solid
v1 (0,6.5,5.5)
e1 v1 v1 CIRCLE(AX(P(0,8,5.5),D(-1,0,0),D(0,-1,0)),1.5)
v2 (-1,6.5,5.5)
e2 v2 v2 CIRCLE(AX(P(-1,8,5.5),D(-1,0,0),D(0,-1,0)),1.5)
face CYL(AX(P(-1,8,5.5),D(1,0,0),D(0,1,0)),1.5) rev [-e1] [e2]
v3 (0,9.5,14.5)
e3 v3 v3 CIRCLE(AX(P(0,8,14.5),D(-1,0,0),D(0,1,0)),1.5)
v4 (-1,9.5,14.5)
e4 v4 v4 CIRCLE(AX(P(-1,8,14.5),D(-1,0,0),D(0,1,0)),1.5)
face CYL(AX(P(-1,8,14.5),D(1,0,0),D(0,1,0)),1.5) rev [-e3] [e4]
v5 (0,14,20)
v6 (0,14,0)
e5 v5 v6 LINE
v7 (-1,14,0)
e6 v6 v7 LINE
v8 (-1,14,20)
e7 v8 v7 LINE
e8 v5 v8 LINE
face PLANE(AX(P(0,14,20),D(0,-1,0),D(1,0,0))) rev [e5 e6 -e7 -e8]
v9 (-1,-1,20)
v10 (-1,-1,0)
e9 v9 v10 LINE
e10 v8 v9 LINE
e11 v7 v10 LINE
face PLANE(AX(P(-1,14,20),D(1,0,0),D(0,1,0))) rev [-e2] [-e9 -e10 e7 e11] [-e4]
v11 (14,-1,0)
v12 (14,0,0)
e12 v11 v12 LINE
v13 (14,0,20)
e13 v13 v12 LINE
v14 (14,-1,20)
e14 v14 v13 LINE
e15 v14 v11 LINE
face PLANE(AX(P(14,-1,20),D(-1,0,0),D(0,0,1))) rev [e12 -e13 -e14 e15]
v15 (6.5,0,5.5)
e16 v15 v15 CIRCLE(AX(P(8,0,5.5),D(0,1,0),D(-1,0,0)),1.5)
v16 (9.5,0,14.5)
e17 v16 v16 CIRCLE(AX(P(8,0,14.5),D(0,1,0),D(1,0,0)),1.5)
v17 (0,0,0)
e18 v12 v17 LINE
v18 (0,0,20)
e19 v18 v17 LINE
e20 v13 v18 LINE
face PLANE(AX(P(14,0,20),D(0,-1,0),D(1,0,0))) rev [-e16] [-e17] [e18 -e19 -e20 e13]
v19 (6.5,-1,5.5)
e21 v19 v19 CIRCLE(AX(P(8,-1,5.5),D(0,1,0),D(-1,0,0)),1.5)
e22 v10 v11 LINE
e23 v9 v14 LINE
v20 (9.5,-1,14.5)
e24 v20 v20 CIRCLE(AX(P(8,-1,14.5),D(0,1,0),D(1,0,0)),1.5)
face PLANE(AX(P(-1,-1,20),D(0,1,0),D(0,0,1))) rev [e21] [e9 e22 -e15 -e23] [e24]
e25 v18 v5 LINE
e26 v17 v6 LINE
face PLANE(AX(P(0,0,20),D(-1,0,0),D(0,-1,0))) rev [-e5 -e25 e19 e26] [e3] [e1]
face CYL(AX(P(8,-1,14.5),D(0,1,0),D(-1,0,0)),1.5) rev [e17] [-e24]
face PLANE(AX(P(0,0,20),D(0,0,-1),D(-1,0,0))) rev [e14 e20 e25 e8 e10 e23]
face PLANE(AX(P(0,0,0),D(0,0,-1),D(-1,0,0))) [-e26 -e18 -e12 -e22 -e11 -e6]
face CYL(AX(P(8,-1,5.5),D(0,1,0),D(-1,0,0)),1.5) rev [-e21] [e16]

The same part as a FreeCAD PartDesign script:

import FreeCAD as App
import Part
import Sketcher
Q = App.Units.Quantity

doc = App.newDocument("Part")
body = doc.addObject("PartDesign::Body", "Body")

# Sketch on XY plane
sketch1 = body.newObject("Sketcher::SketchObject", "Sketch")
sketch1.AttachmentSupport = (doc.getObject("XY_Plane"), [""])
sketch1.MapMode = "FlatFace"
sketch1.addGeometry([
    Part.LineSegment(App.Vector(0, 0, 0), App.Vector(0, 14, 0)),  # 0
    Part.LineSegment(App.Vector(0, 14, 0), App.Vector(-1, 14, 0)),  # 1
    Part.LineSegment(App.Vector(-1, 14, 0), App.Vector(-1, -1, 0)),  # 2
    Part.LineSegment(App.Vector(-1, -1, 0), App.Vector(14, -1, 0)),  # 3
    Part.LineSegment(App.Vector(14, -1, 0), App.Vector(14, 0, 0)),  # 4
    Part.LineSegment(App.Vector(14, 0, 0), App.Vector(0, 0, 0)),  # 5
], False)
sketch1.addConstraint([
    Sketcher.Constraint("Coincident", 0, 2, 1, 1),
    Sketcher.Constraint("Coincident", 1, 2, 2, 1),
    Sketcher.Constraint("Coincident", 2, 2, 3, 1),
    Sketcher.Constraint("Coincident", 3, 2, 4, 1),
    Sketcher.Constraint("Coincident", 4, 2, 5, 1),
    Sketcher.Constraint("Coincident", 5, 2, 0, 1),
    Sketcher.Constraint("Vertical", 0),
    Sketcher.Constraint("Horizontal", 1),
    Sketcher.Constraint("Vertical", 2),
    Sketcher.Constraint("Horizontal", 3),
    Sketcher.Constraint("Vertical", 4),
    Sketcher.Constraint("Horizontal", 5),
    Sketcher.Constraint("Coincident", 5, 2, -1, 1),
    Sketcher.Constraint("Equal", 5, 0),
    Sketcher.Constraint("Equal", 3, 2),
    Sketcher.Constraint("DistanceX", 1, 2, 1, 1, Q("1 mm")),
    Sketcher.Constraint("DistanceX", 3, 1, 3, 2, Q("15 mm")),
])
pad1 = body.newObject("PartDesign::Pad", "Pad")
pad1.Profile = sketch1
pad1.Length = 20

# Sketch on XZ plane
sketch2 = body.newObject("Sketcher::SketchObject", "Sketch001")
sketch2.AttachmentSupport = (doc.getObject("XZ_Plane"), [""])
sketch2.MapMode = "FlatFace"
sketch2.addGeometry([
    Part.Circle(App.Vector(8, 5.5, 0), App.Vector(0, 0, 1), 1.5),
    Part.Circle(App.Vector(8, 14.5, 0), App.Vector(0, 0, 1), 1.5),
], False)
sketch2.addConstraint([
    Sketcher.Constraint("Equal", 0, 1),
    Sketcher.Constraint("Vertical", 0, 3, 1, 3),
    Sketcher.Constraint("Diameter", 0, Q("3 mm")),
    Sketcher.Constraint("DistanceX", -1, 1, 0, 3, Q("8 mm")),
    Sketcher.Constraint("DistanceY", 0, 3, 1, 3, Q("9 mm")),
    Sketcher.Constraint("DistanceY", -1, 1, 0, 3, Q("5.5 mm")),
])
pocket1 = body.newObject("PartDesign::Pocket", "Pocket")
pocket1.Profile = sketch2
pocket1.Type = "ThroughAll"
pocket1.Reversed = True
doc.recompute()

datumplane = body.newObject("PartDesign::Plane", "DatumPlane")
datumplane.Placement = App.Placement(App.Vector(0, 0, 0), App.Rotation(App.Vector(0.707106781, 0.707106781, 0), App.Vector(0, 0, -1), App.Vector(-0.707106781, 0.707106781, 0), "ZXY"))
mirrored = body.newObject("PartDesign::Mirrored", "Mirrored")
mirrored.Originals = [pocket1]
mirrored.MirrorPlane = (datumplane, [""])
body.Tip = mirrored

doc.recompute()
